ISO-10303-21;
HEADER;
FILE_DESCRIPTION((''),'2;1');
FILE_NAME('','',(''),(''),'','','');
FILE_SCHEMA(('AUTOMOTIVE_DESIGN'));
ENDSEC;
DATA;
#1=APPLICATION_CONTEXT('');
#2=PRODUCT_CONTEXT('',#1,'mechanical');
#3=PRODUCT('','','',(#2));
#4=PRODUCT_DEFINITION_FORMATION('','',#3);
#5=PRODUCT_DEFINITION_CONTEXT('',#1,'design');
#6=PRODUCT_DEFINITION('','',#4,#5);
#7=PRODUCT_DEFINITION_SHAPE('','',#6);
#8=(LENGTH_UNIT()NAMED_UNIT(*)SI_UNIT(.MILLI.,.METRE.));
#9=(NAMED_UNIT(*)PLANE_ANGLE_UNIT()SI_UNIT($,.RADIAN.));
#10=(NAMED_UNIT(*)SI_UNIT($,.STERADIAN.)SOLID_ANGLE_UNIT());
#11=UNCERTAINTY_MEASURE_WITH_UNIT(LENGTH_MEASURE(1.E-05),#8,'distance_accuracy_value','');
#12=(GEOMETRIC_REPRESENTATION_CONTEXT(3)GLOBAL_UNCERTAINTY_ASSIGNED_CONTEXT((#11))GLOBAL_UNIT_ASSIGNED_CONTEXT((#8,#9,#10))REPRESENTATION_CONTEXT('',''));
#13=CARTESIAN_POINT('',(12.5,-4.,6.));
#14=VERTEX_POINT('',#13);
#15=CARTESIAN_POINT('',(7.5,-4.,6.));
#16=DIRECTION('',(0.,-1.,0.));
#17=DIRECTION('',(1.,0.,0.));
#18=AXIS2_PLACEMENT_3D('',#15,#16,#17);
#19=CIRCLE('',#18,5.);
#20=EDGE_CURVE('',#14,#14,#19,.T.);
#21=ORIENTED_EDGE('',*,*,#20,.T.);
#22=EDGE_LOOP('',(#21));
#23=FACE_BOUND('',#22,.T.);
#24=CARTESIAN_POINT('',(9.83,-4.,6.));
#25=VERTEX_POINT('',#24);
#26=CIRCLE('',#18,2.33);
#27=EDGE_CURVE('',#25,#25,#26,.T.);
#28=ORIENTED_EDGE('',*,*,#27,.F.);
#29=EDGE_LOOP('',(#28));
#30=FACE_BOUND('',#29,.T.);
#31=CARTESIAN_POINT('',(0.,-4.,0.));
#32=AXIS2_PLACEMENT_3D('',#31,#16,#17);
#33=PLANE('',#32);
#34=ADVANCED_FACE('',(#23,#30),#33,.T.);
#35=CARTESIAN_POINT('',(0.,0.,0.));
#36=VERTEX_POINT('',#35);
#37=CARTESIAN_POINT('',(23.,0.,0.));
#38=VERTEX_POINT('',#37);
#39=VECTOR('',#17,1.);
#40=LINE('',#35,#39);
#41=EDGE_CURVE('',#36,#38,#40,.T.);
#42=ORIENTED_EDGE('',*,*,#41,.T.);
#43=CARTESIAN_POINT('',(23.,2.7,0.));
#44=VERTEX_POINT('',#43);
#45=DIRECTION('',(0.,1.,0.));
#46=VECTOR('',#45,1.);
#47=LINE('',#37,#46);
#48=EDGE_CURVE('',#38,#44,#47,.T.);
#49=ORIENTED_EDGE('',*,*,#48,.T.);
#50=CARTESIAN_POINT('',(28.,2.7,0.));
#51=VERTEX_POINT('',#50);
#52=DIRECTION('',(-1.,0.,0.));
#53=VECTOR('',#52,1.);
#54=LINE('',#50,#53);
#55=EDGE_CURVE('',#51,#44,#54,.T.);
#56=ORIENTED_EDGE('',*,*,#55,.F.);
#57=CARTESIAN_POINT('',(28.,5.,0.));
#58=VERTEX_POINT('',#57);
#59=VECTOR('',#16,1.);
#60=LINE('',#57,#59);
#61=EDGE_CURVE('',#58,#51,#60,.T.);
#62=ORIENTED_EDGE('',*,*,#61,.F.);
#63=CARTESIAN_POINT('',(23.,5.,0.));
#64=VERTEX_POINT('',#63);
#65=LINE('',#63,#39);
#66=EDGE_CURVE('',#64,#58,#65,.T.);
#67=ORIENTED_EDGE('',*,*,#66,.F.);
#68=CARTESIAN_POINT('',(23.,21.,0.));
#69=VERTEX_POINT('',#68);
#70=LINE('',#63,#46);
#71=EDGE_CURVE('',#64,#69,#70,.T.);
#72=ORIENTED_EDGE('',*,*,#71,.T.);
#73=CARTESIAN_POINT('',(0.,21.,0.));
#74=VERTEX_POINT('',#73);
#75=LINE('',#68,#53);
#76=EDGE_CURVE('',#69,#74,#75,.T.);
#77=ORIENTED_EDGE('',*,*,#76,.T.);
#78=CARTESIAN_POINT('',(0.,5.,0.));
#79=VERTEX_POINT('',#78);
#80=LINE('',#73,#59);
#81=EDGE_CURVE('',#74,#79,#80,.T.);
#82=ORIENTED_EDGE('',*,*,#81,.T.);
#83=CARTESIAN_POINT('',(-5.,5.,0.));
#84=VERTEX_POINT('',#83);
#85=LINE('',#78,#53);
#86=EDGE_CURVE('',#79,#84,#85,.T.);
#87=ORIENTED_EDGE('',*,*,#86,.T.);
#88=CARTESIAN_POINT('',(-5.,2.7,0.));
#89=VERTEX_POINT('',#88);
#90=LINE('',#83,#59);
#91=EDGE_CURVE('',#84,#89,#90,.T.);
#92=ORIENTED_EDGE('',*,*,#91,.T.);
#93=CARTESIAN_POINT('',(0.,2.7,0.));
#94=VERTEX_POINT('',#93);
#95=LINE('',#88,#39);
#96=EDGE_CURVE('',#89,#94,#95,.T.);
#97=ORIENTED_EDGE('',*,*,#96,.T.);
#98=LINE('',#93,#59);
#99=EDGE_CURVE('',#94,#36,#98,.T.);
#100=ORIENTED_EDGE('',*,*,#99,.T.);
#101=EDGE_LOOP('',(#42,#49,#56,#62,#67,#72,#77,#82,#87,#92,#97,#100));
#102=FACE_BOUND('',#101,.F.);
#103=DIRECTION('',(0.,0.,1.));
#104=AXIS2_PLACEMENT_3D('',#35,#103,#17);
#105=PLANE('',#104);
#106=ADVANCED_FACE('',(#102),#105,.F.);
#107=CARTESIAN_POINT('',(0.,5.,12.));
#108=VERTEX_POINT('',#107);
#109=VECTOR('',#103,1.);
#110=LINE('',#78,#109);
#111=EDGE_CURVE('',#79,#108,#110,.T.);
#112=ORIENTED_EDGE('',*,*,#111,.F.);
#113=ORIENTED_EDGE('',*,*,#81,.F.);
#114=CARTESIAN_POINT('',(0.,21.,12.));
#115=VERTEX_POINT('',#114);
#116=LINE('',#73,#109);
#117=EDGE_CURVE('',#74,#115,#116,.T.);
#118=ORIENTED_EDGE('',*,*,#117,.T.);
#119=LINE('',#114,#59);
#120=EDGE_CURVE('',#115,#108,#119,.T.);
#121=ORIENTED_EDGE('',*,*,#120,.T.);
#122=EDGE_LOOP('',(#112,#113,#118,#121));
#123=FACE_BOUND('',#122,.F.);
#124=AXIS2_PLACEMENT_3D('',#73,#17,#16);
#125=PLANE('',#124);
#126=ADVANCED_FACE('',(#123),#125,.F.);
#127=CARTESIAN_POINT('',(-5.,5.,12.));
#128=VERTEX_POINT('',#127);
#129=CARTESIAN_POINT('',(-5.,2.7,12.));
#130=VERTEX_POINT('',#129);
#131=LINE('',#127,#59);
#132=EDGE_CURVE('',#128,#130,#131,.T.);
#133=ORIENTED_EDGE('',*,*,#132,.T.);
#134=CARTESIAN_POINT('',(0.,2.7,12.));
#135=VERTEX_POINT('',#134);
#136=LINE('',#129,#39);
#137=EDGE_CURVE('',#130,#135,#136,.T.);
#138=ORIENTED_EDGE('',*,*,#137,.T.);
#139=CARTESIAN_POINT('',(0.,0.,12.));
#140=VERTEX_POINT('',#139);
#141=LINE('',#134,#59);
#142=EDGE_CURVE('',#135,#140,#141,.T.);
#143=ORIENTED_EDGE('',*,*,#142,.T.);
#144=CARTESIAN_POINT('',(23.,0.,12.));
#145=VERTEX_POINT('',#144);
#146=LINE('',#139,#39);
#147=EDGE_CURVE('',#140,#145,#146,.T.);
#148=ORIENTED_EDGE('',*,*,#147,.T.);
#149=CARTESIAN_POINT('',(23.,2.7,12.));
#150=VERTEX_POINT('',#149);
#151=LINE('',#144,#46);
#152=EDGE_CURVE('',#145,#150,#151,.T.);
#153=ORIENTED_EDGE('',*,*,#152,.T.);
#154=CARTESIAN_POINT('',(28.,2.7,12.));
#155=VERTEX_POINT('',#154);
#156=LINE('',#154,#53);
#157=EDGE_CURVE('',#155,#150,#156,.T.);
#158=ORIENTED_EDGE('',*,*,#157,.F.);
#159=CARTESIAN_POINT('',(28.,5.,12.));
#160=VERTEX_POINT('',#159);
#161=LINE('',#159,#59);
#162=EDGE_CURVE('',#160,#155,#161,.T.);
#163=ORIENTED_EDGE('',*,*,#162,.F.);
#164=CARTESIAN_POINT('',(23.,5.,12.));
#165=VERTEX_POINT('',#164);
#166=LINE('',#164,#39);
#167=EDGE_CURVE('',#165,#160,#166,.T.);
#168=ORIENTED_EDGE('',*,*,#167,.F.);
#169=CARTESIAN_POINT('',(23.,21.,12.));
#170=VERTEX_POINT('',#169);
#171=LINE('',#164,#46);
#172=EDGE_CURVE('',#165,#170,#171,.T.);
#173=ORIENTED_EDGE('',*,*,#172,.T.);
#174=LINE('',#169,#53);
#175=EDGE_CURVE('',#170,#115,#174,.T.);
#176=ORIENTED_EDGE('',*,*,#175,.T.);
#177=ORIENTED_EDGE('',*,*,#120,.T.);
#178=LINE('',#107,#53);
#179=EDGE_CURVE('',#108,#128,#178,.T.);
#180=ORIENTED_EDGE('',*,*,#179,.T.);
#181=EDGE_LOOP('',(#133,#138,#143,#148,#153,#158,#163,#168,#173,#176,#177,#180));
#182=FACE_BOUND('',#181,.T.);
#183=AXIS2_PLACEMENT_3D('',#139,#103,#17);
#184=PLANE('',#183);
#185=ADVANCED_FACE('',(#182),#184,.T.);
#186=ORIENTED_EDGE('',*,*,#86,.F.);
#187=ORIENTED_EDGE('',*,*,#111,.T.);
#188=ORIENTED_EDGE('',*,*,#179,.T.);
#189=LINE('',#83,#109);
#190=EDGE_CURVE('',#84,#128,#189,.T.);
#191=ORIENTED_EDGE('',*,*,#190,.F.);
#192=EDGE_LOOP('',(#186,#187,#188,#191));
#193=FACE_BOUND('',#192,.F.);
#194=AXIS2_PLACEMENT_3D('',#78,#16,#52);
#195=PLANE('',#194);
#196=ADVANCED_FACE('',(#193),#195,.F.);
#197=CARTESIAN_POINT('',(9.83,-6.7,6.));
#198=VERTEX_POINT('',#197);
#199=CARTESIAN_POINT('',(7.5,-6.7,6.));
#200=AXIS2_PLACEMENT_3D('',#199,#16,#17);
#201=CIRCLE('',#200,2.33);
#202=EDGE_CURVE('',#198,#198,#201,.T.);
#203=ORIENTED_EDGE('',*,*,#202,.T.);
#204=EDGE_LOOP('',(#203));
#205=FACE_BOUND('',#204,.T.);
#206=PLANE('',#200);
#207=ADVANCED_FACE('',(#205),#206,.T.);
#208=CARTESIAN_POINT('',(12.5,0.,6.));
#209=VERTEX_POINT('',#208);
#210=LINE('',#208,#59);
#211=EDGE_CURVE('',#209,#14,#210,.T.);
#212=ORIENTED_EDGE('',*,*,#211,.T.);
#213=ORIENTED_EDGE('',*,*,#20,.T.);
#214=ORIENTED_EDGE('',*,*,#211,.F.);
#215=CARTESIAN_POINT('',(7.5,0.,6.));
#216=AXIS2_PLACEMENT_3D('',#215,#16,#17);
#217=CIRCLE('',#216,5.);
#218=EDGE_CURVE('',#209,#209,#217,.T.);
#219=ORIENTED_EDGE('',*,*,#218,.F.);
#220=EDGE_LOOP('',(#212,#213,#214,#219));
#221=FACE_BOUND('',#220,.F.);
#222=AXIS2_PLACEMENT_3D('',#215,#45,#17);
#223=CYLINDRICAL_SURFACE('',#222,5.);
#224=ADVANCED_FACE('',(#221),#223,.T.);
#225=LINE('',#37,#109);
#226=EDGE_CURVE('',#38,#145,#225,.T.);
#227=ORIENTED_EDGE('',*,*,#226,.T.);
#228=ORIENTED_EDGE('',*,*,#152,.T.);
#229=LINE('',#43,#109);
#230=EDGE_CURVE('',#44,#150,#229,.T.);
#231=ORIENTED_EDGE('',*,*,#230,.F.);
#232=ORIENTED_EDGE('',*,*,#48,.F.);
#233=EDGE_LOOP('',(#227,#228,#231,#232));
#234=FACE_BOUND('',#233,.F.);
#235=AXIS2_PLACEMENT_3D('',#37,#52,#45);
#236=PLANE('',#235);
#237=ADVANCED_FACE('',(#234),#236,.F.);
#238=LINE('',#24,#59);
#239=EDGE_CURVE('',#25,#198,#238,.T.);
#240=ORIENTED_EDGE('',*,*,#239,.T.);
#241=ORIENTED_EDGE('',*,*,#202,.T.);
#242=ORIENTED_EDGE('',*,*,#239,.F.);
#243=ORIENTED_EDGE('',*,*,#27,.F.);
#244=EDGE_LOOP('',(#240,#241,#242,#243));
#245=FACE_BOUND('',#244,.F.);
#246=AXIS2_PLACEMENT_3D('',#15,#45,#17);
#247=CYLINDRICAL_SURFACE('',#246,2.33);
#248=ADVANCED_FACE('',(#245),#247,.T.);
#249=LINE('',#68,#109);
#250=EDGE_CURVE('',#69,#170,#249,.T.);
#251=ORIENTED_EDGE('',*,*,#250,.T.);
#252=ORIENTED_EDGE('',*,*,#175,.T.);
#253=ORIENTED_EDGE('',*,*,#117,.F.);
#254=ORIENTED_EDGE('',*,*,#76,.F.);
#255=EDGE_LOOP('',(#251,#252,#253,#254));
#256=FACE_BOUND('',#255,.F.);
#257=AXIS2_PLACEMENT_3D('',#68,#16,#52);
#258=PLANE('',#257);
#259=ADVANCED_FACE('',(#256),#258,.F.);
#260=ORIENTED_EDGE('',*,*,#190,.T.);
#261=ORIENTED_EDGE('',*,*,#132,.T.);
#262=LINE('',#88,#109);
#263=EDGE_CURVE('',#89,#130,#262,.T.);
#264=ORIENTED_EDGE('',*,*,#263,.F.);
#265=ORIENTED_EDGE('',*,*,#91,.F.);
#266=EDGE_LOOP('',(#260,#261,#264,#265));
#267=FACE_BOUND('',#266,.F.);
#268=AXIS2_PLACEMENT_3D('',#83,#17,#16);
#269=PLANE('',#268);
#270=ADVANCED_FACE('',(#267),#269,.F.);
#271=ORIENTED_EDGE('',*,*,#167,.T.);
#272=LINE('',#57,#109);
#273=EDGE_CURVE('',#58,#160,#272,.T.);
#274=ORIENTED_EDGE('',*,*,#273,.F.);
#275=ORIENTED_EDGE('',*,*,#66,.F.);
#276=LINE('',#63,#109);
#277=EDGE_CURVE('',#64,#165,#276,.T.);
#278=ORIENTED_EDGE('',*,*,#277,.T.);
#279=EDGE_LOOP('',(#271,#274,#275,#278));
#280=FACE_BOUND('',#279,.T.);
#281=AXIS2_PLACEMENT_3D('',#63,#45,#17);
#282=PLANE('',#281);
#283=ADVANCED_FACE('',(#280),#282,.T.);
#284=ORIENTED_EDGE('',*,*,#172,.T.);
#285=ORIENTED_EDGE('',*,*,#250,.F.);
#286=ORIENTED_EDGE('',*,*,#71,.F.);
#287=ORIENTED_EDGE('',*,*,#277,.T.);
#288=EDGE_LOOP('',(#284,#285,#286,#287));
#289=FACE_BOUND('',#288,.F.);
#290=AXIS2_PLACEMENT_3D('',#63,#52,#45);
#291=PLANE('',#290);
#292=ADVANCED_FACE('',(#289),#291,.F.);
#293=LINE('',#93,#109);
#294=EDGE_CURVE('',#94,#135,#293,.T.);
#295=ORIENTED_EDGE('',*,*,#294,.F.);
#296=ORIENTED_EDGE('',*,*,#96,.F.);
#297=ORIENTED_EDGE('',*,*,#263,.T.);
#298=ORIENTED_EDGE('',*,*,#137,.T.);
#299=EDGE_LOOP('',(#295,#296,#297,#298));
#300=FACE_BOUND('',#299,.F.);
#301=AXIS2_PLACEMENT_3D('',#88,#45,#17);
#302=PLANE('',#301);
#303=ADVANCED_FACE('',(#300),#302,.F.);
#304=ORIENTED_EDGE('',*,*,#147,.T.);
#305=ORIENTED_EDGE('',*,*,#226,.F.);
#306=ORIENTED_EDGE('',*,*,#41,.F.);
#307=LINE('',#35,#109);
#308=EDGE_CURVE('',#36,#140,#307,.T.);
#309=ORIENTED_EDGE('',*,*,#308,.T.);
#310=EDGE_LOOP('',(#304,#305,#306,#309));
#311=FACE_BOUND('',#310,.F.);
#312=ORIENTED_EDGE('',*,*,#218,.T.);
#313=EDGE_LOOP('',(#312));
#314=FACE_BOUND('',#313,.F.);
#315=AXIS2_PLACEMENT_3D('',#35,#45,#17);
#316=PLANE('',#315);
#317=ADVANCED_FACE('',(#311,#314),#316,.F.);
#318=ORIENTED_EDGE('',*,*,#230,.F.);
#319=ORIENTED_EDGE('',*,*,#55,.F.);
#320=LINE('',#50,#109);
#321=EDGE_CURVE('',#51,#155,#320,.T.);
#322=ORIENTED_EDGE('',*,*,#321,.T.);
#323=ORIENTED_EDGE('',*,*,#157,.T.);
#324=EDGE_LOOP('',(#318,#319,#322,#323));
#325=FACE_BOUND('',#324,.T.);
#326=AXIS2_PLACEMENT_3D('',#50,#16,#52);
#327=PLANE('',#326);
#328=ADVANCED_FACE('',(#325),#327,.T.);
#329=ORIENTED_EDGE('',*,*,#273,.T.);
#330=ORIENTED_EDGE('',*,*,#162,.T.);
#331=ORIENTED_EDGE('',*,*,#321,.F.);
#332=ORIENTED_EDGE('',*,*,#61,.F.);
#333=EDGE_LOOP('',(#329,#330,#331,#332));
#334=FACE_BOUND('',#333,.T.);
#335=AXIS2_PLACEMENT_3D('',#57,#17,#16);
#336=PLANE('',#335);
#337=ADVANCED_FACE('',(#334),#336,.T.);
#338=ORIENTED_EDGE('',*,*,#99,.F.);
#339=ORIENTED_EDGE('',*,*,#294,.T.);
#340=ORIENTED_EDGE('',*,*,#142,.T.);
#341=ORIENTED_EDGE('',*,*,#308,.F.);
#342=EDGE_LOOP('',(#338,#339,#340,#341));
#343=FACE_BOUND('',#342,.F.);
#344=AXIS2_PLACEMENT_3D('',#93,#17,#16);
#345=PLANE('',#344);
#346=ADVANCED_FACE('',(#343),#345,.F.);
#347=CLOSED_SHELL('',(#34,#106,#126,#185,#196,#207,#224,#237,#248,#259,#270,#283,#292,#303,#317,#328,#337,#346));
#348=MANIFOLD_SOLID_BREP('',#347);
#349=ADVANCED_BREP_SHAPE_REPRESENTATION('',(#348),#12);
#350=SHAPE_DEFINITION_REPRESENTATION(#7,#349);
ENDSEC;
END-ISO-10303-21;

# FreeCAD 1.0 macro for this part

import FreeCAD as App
import Part
import Sketcher
Q = App.Units.Quantity


def add_polygon(sketch, points):
    """Adds a closed chain of lines whose ends are joined by coincident constraints."""
    first, n = sketch.GeometryCount, len(points)
    for a, b in zip(points, points[1:] + points[:1]):
        sketch.addGeometry(Part.LineSegment(App.Vector(*a, 0), App.Vector(*b, 0)), False)
    for i in range(n):
        sketch.addConstraint(Sketcher.Constraint("Coincident", first + i, 2, first + (i + 1) % n, 1))

doc = App.newDocument("Part")
body = doc.addObject("PartDesign::Body", "Body")

sketch1 = doc.addObject("Sketcher::SketchObject", "Sketch")
body.addObject(sketch1)
sketch1.AttachmentSupport = (doc.XY_Plane, [""])
sketch1.MapMode = "FlatFace"
add_polygon(sketch1, [(0, 2.7), (0, 0), (23, 0), (23, 2.7), (28, 2.7), (28, 5), (23, 5), (23, 21), (0, 21), (0, 5), (-5, 5), (-5, 2.7)])
sketch1.addConstraint([
    Sketcher.Constraint("Vertical", 0),
    Sketcher.Constraint("Horizontal", 1),
    Sketcher.Constraint("Vertical", 2),
    Sketcher.Constraint("Horizontal", 3),
    Sketcher.Constraint("Vertical", 4),
    Sketcher.Constraint("Horizontal", 5),
    Sketcher.Constraint("Vertical", 6),
    Sketcher.Constraint("Horizontal", 7),
    Sketcher.Constraint("Vertical", 8),
    Sketcher.Constraint("Horizontal", 9),
    Sketcher.Constraint("Vertical", 10),
    Sketcher.Constraint("Horizontal", 11),
    Sketcher.Constraint("Coincident", 0, 2, -1, 1),
    Sketcher.Constraint("PointOnObject", 7, 2, -2),
    Sketcher.Constraint("Horizontal", 5, 2, 8, 2),
    Sketcher.Constraint("Horizontal", 3, 2, 10, 2),
    Sketcher.Constraint("Vertical", 2, 2, 5, 2),
    Sketcher.Constraint("Equal", 5, 9),
    Sketcher.Constraint("DistanceX", 1, 1, 1, 2, Q("23 mm")),
    Sketcher.Constraint("DistanceX", 3, 1, 3, 2, Q("5 mm")),
    Sketcher.Constraint("DistanceY", 4, 1, 4, 2, Q("2.3 mm")),
    Sketcher.Constraint("DistanceY", -1, 1, 4, 2, Q("5 mm")),
    Sketcher.Constraint("DistanceY", -1, 1, 6, 2, Q("21 mm")),
])
pad1 = doc.addObject("PartDesign::Pad", "Pad")
body.addObject(pad1)
pad1.Profile = sketch1
pad1.Length = 12

sketch2 = doc.addObject("Sketcher::SketchObject", "Sketch001")
body.addObject(sketch2)
sketch2.AttachmentSupport = (doc.XZ_Plane, [""])
sketch2.MapMode = "FlatFace"
sketch2.addGeometry(Part.Circle(App.Vector(7.5, 6, 0), App.Vector(0, 0, 1), 5), False)
sketch2.addConstraint([
    Sketcher.Constraint("Diameter", 0, Q("10 mm")),
    Sketcher.Constraint("DistanceX", -1, 1, 0, 3, Q("7.5 mm")),
    Sketcher.Constraint("DistanceY", -1, 1, 0, 3, Q("6 mm")),
])
pad2 = doc.addObject("PartDesign::Pad", "Pad001")
body.addObject(pad2)
pad2.Profile = sketch2
pad2.Length = 4

sketch3 = doc.addObject("Sketcher::SketchObject", "Sketch002")
body.addObject(sketch3)
sketch3.AttachmentSupport = (doc.XZ_Plane, [""])
sketch3.MapMode = "FlatFace"
sketch3.AttachmentOffset = App.Placement(App.Vector(0, 0, 4), App.Rotation())
sketch3.addGeometry(Part.Circle(App.Vector(7.5, 6, 0), App.Vector(0, 0, 1), 2.33), False)
sketch3.addConstraint([
    Sketcher.Constraint("Diameter", 0, Q("4.66 mm")),
    Sketcher.Constraint("DistanceY", -1, 1, 0, 3, Q("6 mm")),
    Sketcher.Constraint("DistanceX", -1, 1, 0, 3, Q("7.5 mm")),
])
pad3 = doc.addObject("PartDesign::Pad", "Pad002")
body.addObject(pad3)
pad3.Profile = sketch3
pad3.Length = 2.7

doc.recompute()
